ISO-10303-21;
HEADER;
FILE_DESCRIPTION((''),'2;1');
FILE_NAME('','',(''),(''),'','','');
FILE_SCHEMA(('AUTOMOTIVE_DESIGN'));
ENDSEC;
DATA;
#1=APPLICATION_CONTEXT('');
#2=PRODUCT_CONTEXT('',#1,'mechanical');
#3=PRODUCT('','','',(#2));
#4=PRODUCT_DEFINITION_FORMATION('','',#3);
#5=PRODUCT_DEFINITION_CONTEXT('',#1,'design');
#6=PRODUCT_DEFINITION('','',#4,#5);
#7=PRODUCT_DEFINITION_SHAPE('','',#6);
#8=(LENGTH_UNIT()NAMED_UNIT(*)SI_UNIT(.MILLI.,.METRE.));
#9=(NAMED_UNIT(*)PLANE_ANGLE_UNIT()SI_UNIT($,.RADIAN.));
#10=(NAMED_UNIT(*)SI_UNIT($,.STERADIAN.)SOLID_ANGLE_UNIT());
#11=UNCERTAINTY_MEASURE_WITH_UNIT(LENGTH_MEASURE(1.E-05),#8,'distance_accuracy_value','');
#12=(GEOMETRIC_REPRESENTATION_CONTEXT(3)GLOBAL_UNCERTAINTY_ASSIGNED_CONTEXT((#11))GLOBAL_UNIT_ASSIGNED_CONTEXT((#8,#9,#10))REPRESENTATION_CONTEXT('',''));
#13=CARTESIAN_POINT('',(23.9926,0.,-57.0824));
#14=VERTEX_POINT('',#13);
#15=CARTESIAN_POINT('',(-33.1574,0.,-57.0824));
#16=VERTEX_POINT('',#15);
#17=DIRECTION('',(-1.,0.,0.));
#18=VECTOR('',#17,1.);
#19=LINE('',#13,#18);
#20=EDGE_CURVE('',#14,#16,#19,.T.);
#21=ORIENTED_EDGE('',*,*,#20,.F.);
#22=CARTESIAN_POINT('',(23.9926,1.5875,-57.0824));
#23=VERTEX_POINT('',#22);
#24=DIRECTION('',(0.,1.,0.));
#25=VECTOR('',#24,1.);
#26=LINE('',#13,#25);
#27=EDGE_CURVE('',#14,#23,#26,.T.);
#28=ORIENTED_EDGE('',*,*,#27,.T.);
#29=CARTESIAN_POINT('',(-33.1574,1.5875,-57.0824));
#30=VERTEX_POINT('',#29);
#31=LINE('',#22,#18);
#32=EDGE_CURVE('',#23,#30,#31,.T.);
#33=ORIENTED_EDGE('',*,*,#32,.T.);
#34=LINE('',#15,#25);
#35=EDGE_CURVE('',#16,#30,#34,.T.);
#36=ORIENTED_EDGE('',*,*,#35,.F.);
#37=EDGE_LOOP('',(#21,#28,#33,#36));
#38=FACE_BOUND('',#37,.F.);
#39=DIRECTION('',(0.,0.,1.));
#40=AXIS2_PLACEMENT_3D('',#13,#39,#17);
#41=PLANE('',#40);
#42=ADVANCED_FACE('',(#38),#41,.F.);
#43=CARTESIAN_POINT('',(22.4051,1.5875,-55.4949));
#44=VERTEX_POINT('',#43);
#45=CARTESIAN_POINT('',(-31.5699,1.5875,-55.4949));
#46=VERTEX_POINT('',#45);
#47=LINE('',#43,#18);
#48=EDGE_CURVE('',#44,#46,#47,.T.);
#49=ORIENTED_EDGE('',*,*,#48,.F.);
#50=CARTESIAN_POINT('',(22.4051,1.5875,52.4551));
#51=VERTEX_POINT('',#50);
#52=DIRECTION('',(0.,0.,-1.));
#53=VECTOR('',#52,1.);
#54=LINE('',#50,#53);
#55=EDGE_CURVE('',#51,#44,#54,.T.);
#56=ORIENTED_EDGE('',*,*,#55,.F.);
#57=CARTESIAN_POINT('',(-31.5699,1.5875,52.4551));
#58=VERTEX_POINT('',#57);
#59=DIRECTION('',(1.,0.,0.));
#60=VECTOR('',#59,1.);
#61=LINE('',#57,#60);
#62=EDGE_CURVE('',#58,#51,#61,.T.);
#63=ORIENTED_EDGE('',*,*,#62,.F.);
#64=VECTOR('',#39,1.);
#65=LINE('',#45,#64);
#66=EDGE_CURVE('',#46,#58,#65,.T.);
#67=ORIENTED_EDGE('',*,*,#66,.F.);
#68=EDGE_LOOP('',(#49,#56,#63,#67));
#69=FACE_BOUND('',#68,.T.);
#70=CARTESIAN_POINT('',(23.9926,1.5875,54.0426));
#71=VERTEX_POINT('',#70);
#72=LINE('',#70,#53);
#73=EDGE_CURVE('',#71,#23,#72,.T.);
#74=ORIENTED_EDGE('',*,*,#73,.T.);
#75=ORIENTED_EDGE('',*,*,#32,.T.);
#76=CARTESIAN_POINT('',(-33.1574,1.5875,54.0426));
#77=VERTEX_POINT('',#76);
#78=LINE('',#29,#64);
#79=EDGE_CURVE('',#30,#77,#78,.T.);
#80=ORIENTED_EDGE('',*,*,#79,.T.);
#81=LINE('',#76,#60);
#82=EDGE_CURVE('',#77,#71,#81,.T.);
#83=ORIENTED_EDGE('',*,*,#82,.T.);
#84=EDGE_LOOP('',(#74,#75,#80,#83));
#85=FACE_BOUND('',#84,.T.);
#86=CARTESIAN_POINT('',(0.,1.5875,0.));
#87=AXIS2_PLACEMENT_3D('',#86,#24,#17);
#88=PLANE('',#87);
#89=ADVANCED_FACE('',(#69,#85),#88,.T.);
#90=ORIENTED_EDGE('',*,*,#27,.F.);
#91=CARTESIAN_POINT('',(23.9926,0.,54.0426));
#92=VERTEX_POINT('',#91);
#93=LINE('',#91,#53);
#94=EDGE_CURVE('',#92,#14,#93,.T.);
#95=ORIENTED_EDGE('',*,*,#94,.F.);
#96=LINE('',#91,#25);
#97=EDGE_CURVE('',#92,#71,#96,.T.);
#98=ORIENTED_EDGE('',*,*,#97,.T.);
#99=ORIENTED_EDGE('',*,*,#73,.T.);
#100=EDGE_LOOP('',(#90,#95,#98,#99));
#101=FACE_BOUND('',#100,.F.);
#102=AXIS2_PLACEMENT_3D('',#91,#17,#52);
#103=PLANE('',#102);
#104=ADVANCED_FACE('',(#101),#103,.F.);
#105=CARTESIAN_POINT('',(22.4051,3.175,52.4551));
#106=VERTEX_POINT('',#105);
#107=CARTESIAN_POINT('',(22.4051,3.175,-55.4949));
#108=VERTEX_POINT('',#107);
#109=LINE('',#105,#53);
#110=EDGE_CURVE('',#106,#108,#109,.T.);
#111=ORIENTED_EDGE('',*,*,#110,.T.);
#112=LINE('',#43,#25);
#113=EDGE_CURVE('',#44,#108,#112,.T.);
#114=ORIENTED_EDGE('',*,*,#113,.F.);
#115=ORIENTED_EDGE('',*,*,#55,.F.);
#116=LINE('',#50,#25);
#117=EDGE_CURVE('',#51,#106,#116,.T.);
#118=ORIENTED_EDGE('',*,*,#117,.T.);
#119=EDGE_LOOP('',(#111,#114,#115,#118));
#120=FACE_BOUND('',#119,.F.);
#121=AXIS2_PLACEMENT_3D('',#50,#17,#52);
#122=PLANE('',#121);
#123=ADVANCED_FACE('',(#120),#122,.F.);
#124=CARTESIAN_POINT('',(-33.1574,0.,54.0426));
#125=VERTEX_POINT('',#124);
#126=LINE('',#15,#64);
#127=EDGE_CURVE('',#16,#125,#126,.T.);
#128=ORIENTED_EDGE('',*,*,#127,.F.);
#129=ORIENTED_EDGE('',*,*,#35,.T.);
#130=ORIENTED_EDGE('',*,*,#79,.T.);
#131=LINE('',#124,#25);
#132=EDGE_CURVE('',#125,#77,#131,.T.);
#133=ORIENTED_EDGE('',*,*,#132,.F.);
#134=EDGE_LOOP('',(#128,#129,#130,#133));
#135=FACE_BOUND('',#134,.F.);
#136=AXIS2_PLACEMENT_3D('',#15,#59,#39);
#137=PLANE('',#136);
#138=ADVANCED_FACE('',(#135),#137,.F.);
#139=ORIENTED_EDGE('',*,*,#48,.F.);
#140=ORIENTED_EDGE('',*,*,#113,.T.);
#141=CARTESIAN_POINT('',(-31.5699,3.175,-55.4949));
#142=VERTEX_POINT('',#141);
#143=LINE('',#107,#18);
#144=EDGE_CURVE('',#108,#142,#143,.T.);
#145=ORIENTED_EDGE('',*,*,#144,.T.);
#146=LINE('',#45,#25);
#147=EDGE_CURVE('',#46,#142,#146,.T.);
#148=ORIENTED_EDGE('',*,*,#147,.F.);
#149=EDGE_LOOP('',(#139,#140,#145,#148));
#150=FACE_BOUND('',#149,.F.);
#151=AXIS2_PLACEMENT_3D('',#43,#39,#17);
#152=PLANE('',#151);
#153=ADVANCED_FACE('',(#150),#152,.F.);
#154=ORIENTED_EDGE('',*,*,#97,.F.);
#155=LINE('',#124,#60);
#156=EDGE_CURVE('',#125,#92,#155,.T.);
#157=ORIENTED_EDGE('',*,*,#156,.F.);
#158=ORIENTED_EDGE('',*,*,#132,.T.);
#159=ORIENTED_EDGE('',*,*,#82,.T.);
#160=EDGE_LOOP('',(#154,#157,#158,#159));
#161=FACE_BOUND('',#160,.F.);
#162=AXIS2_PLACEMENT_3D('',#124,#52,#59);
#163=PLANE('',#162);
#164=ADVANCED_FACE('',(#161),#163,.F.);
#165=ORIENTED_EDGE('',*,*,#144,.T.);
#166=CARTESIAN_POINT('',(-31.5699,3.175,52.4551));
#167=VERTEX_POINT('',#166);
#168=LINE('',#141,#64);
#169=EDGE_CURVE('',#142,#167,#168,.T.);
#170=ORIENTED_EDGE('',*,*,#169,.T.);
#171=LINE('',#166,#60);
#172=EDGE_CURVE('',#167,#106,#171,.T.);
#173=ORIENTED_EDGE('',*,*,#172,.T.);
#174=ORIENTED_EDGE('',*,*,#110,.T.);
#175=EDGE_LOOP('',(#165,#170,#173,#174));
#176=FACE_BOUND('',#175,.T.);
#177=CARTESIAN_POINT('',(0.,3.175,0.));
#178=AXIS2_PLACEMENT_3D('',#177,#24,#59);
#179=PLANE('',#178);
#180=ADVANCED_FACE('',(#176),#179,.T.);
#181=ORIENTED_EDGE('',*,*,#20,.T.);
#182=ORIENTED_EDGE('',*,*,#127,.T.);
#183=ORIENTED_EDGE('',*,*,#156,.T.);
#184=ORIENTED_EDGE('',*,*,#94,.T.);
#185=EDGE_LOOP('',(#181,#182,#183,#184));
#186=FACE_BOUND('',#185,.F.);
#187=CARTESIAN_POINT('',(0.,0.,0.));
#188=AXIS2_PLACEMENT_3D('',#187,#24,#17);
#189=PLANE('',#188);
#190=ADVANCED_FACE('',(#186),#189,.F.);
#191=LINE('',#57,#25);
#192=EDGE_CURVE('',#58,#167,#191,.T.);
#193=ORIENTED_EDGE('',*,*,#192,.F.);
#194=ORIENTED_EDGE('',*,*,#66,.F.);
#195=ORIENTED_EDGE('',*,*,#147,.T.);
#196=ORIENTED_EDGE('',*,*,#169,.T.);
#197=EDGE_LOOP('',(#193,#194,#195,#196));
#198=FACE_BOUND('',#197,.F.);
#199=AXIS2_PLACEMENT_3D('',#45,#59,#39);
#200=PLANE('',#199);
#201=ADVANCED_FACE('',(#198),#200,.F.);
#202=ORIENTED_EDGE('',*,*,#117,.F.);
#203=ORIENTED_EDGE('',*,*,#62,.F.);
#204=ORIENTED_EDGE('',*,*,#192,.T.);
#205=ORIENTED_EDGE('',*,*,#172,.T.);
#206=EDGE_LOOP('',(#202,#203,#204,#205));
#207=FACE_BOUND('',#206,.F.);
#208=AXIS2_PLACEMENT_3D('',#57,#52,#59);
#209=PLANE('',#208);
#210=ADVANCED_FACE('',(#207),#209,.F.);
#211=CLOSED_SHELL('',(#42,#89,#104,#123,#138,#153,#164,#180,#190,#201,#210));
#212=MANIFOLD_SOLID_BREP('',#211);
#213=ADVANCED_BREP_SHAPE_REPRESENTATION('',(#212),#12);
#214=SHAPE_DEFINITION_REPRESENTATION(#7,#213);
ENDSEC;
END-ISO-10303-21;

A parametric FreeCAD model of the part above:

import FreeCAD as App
import Part
import Sketcher
from FreeCAD import Vector
Q = App.Units.Quantity

doc = App.newDocument("Part")
params = doc.addObject("Spreadsheet::Sheet", "Params")
for row, (alias, value) in enumerate([
    ("sketch1_width", "2.25 in"),
    ("sketch1_height", "4.375 in"),
    ("pad1_length", "0.0625 in"),
    ("sketch2_height", "4.25 in"),
    ("sketch2_width", "2.125 in"),
    ("pad2_length", "0.0625 in"),
], start=1):
    params.set(f"A{row}", alias)
    params.set(f"B{row}", "=" + value)
    params.setAlias(f"B{row}", alias)

body = doc.addObject("PartDesign::Body", "Body")

# Sketch on XZ plane
sketch1 = doc.addObject("Sketcher::SketchObject", "Sketch")
body.addObject(sketch1)
sketch1.AttachmentSupport = (doc.XZ_Plane, [""])
sketch1.MapMode = "FlatFace"
sketch1.addGeometry([
    Part.LineSegment(Vector(-33, -57, 0), Vector(-33, 54, 0)),
    Part.LineSegment(Vector(-33, 54, 0), Vector(24, 54, 0)),
    Part.LineSegment(Vector(24, 54, 0), Vector(24, -57, 0)),
    Part.LineSegment(Vector(24, -57, 0), Vector(-33, -57, 0)),
], False)
sketch1.addConstraint([
    Sketcher.Constraint("Coincident", 0, 2, 1, 1),
    Sketcher.Constraint("Coincident", 1, 2, 2, 1),
    Sketcher.Constraint("Coincident", 2, 2, 3, 1),
    Sketcher.Constraint("Coincident", 3, 2, 0, 1),
    Sketcher.Constraint("Vertical", 0),
    Sketcher.Constraint("Horizontal", 1),
    Sketcher.Constraint("Vertical", 2),
    Sketcher.Constraint("Horizontal", 3),
    Sketcher.Constraint("DistanceX", 1, 1, 1, 2, Q("2.25 in")),
    Sketcher.Constraint("DistanceY", 0, 1, 0, 2, Q("4.375 in")),
    Sketcher.Constraint("DistanceX", 0, 2, -1, 1, Q("1.3054 in")),
    Sketcher.Constraint("DistanceY", -1, 1, 0, 2, Q("54.0426 mm")),
])
sketch1.setExpression("Constraints[8]", "Params.sketch1_width")
sketch1.setExpression("Constraints[9]", "Params.sketch1_height")
pad1 = doc.addObject("PartDesign::Pad", "Pad")
body.addObject(pad1)
pad1.Profile = sketch1
pad1.setExpression("Length", "Params.pad1_length")
pad1.Reversed = True

# Sketch on XZ plane
sketch2 = doc.addObject("Sketcher::SketchObject", "Sketch001")
body.addObject(sketch2)
sketch2.AttachmentSupport = (doc.XZ_Plane, [""])
sketch2.MapMode = "FlatFace"
sketch2.AttachmentOffset = App.Placement(Vector(0, 0, -0.0625 * 25.4), App.Rotation())
sketch2.addGeometry([
    Part.LineSegment(Vector(-32, -55, 0), Vector(-32, 52, 0)),
    Part.LineSegment(Vector(-32, 52, 0), Vector(22, 52, 0)),
    Part.LineSegment(Vector(22, 52, 0), Vector(22, -55, 0)),
    Part.LineSegment(Vector(22, -55, 0), Vector(-32, -55, 0)),
], False)
sketch2.addConstraint([
    Sketcher.Constraint("Coincident", 0, 2, 1, 1),
    Sketcher.Constraint("Coincident", 1, 2, 2, 1),
    Sketcher.Constraint("Coincident", 2, 2, 3, 1),
    Sketcher.Constraint("Coincident", 3, 2, 0, 1),
    Sketcher.Constraint("Vertical", 0),
    Sketcher.Constraint("Horizontal", 1),
    Sketcher.Constraint("Vertical", 2),
    Sketcher.Constraint("Horizontal", 3),
    Sketcher.Constraint("DistanceY", 0, 1, 0, 2, Q("4.25 in")),
    Sketcher.Constraint("DistanceX", 1, 1, 1, 2, Q("2.125 in")),
    Sketcher.Constraint("DistanceX", 0, 2, -1, 1, Q("1.2429 in")),
    Sketcher.Constraint("DistanceY", -1, 1, 0, 2, Q("52.455 mm")),
])
sketch2.setExpression("Constraints[8]", "Params.sketch2_height")
sketch2.setExpression("Constraints[9]", "Params.sketch2_width")
pad2 = doc.addObject("PartDesign::Pad", "Pad001")
body.addObject(pad2)
pad2.Profile = sketch2
pad2.setExpression("Length", "Params.pad2_length")
pad2.Reversed = True

doc.recompute()
